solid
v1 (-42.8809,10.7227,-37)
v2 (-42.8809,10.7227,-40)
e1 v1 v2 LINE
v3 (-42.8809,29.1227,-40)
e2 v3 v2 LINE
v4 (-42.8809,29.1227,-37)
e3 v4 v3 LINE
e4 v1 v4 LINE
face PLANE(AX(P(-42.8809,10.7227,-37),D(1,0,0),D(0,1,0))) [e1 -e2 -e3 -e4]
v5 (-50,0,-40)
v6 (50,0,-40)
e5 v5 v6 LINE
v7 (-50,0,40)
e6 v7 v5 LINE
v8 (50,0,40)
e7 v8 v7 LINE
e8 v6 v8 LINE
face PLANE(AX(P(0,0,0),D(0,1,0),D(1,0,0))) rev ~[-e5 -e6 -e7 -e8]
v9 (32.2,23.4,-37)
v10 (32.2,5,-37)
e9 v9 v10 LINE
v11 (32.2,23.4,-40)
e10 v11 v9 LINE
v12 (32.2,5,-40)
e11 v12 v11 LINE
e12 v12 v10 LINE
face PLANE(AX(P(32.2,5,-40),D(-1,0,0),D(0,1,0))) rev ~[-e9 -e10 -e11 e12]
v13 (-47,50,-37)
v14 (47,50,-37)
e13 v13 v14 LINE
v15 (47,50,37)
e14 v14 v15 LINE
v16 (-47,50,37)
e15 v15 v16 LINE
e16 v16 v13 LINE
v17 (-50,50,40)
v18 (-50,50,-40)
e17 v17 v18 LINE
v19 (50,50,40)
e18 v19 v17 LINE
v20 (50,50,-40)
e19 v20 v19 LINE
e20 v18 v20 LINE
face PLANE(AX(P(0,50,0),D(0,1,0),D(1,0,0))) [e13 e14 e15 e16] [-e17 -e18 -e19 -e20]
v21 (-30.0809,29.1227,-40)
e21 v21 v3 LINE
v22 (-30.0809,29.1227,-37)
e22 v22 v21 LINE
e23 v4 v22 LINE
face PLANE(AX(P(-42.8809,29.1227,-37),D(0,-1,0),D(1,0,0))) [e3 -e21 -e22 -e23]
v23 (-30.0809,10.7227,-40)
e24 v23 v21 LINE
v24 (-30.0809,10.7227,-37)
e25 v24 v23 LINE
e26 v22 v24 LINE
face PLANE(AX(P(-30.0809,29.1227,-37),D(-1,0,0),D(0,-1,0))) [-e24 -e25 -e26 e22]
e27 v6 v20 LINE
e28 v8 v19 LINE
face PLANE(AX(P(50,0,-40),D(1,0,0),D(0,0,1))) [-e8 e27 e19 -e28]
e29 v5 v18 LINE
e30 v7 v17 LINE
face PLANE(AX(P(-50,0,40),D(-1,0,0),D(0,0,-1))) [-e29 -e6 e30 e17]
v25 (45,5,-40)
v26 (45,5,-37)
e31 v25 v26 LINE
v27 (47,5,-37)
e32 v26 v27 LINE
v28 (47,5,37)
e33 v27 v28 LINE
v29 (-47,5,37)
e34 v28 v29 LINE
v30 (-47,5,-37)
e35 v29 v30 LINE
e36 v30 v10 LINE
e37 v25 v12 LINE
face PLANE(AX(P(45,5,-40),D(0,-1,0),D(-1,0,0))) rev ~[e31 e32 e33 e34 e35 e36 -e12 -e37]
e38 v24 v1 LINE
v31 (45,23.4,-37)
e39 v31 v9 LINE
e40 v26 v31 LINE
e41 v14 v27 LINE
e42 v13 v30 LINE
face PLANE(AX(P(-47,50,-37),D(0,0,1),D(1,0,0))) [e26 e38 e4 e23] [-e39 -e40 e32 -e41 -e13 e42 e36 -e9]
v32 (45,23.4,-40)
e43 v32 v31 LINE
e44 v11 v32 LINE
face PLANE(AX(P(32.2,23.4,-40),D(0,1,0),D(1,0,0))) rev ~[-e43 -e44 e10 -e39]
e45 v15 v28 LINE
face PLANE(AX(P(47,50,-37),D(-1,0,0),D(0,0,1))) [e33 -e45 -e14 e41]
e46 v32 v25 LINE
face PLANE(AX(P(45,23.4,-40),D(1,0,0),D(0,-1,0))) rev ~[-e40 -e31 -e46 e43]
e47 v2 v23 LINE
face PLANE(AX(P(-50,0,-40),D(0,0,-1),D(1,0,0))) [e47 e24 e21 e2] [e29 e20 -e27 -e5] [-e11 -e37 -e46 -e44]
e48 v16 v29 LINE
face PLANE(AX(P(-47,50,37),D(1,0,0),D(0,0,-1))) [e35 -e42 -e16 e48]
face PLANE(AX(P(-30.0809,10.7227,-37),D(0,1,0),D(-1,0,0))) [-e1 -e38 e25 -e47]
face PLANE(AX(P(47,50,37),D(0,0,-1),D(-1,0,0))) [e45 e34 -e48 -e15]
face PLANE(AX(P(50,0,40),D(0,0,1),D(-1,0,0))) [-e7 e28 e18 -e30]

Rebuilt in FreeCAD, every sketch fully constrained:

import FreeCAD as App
import Part
import Sketcher
from FreeCAD import Vector
Q = App.Units.Quantity


def add_polygon(sketch, points):
    """Adds a closed chain of lines whose ends are joined by coincident constraints."""
    first, n = sketch.GeometryCount, len(points)
    for a, b in zip(points, points[1:] + points[:1]):
        sketch.addGeometry(Part.LineSegment(App.Vector(*a, 0), App.Vector(*b, 0)), False)
    for i in range(n):
        sketch.addConstraint(Sketcher.Constraint("Coincident", first + i, 2, first + (i + 1) % n, 1))

doc = App.newDocument("Part")
params = doc.addObject("Spreadsheet::Sheet", "Params")
for row, (alias, value) in enumerate([
    ("sketch1_width", "100 mm"),
    ("sketch1_height", "80 mm"),
    ("pad1_length", "50 mm"),
    ("sketch2_width", "94 mm"),
    ("sketch2_height", "74 mm"),
    ("pocket1_length", "45 mm"),
    ("sketch3_width", "12.8 mm"),
    ("sketch3_height", "18.4 mm"),
    ("pocket2_length", "55 mm"),
    ("sketch4_width", "94 mm"),
    ("sketch4_height", "74 mm"),
    ("pocket3_length", "45 mm"),
    ("sketch5_width", "12.8 mm"),
    ("sketch5_height", "18.4 mm"),
    ("pocket4_length", "10 mm"),
], start=1):
    params.set(f"A{row}", alias)
    params.set(f"B{row}", "=" + value)
    params.setAlias(f"B{row}", alias)

body = doc.addObject("PartDesign::Body", "Body")

# Sketch on XZ plane
sketch1 = body.newObject("Sketcher::SketchObject", "Sketch")
sketch1.AttachmentSupport = (doc.getObject("XZ_Plane"), [""])
sketch1.MapMode = "FlatFace"
add_polygon(sketch1, [(-50, 40), (50, 40), (50, -40), (-50, -40)])  # lines 0-3
sketch1.addConstraint(Sketcher.Constraint("Horizontal", 0))
sketch1.addConstraint(Sketcher.Constraint("Vertical", 1))
sketch1.addConstraint(Sketcher.Constraint("Horizontal", 2))
sketch1.addConstraint(Sketcher.Constraint("Vertical", 3))
sketch1.addConstraint(Sketcher.Constraint("Symmetric", 0, 2, 2, 2, -1, 1))
sketch1.addConstraint(Sketcher.Constraint("DistanceX", 0, 1, 0, 2, Q("100 mm")))
sketch1.addConstraint(Sketcher.Constraint("DistanceY", 1, 2, 1, 1, Q("80 mm")))
sketch1.setExpression("Constraints[9]", "Params.sketch1_width")
sketch1.setExpression("Constraints[10]", "Params.sketch1_height")
pad1 = body.newObject("PartDesign::Pad", "Pad")
pad1.Profile = sketch1
pad1.setExpression("Length", "Params.pad1_length")
pad1.Reversed = True

# Sketch on XZ plane
sketch2 = body.newObject("Sketcher::SketchObject", "Sketch001")
sketch2.AttachmentSupport = (doc.getObject("XZ_Plane"), [""])
sketch2.MapMode = "FlatFace"
sketch2.AttachmentOffset = App.Placement(Vector(0, 0, -50), App.Rotation())
add_polygon(sketch2, [(-47, 37), (47, 37), (47, -37), (-47, -37)])  # lines 0-3
sketch2.addConstraint(Sketcher.Constraint("Horizontal", 0))
sketch2.addConstraint(Sketcher.Constraint("Vertical", 1))
sketch2.addConstraint(Sketcher.Constraint("Horizontal", 2))
sketch2.addConstraint(Sketcher.Constraint("Vertical", 3))
sketch2.addConstraint(Sketcher.Constraint("Symmetric", 0, 2, 2, 2, -1, 1))
sketch2.addConstraint(Sketcher.Constraint("DistanceX", 0, 1, 0, 2, Q("94 mm")))
sketch2.addConstraint(Sketcher.Constraint("DistanceY", 1, 2, 1, 1, Q("74 mm")))
sketch2.setExpression("Constraints[9]", "Params.sketch2_width")
sketch2.setExpression("Constraints[10]", "Params.sketch2_height")
pocket1 = body.newObject("PartDesign::Pocket", "Pocket")
pocket1.Profile = sketch2
pocket1.setExpression("Length", "Params.pocket1_length")
pocket1.Reversed = True

# Sketch on XY plane
sketch3 = body.newObject("Sketcher::SketchObject", "Sketch002")
sketch3.AttachmentSupport = (doc.getObject("XY_Plane"), [""])
sketch3.MapMode = "FlatFace"
sketch3.AttachmentOffset = App.Placement(Vector(0, 0, -37), App.Rotation())
add_polygon(sketch3, [(-30, 29), (-43, 29), (-43, 11), (-30, 11)])  # lines 0-3
sketch3.addConstraint(Sketcher.Constraint("Horizontal", 0))
sketch3.addConstraint(Sketcher.Constraint("Vertical", 1))
sketch3.addConstraint(Sketcher.Constraint("Horizontal", 2))
sketch3.addConstraint(Sketcher.Constraint("Vertical", 3))
sketch3.addConstraint(Sketcher.Constraint("DistanceX", 0, 2, 0, 1, Q("12.8 mm")))
sketch3.addConstraint(Sketcher.Constraint("DistanceY", 1, 2, 1, 1, Q("18.4 mm")))
sketch3.addConstraint(Sketcher.Constraint("DistanceX", 0, 2, -1, 1, Q("42.881 mm")))
sketch3.addConstraint(Sketcher.Constraint("DistanceY", -1, 1, 0, 2, Q("29.1227 mm")))
sketch3.setExpression("Constraints[8]", "Params.sketch3_width")
sketch3.setExpression("Constraints[9]", "Params.sketch3_height")
pocket2 = body.newObject("PartDesign::Pocket", "Pocket001")
pocket2.Profile = sketch3
pocket2.setExpression("Length", "Params.pocket2_length")

# Sketch on XZ plane
sketch4 = body.newObject("Sketcher::SketchObject", "Sketch003")
sketch4.AttachmentSupport = (doc.getObject("XZ_Plane"), [""])
sketch4.MapMode = "FlatFace"
sketch4.AttachmentOffset = App.Placement(Vector(0, 0, -50), App.Rotation())
add_polygon(sketch4, [(-47, 37), (47, 37), (47, -37), (-47, -37)])  # lines 0-3
sketch4.addConstraint(Sketcher.Constraint("Horizontal", 0))
sketch4.addConstraint(Sketcher.Constraint("Vertical", 1))
sketch4.addConstraint(Sketcher.Constraint("Horizontal", 2))
sketch4.addConstraint(Sketcher.Constraint("Vertical", 3))
sketch4.addConstraint(Sketcher.Constraint("Symmetric", 0, 2, 2, 2, -1, 1))
sketch4.addConstraint(Sketcher.Constraint("DistanceX", 0, 1, 0, 2, Q("94 mm")))
sketch4.addConstraint(Sketcher.Constraint("DistanceY", 1, 2, 1, 1, Q("74 mm")))
sketch4.setExpression("Constraints[9]", "Params.sketch4_width")
sketch4.setExpression("Constraints[10]", "Params.sketch4_height")
pocket3 = body.newObject("PartDesign::Pocket", "Pocket002")
pocket3.Profile = sketch4
pocket3.setExpression("Length", "Params.pocket3_length")
pocket3.Reversed = True

# Sketch on XY plane
sketch5 = body.newObject("Sketcher::SketchObject", "Sketch004")
sketch5.AttachmentSupport = (doc.getObject("XY_Plane"), [""])
sketch5.MapMode = "FlatFace"
sketch5.AttachmentOffset = App.Placement(Vector(0, 0, -40), App.Rotation())
add_polygon(sketch5, [(45, 23), (45, 5), (32, 5), (32, 23)])  # lines 0-3
sketch5.addConstraint(Sketcher.Constraint("Vertical", 0))
sketch5.addConstraint(Sketcher.Constraint("Horizontal", 1))
sketch5.addConstraint(Sketcher.Constraint("Vertical", 2))
sketch5.addConstraint(Sketcher.Constraint("Horizontal", 3))
sketch5.addConstraint(Sketcher.Constraint("DistanceX", 1, 2, 1, 1, Q("12.8 mm")))
sketch5.addConstraint(Sketcher.Constraint("DistanceY", 0, 2, 0, 1, Q("18.4 mm")))
sketch5.addConstraint(Sketcher.Constraint("DistanceX", -1, 1, 0, 2, Q("45 mm")))
sketch5.addConstraint(Sketcher.Constraint("DistanceY", -1, 1, 0, 2, Q("5 mm")))
sketch5.setExpression("Constraints[8]", "Params.sketch5_width")
sketch5.setExpression("Constraints[9]", "Params.sketch5_height")
pocket4 = body.newObject("PartDesign::Pocket", "Pocket003")
pocket4.Profile = sketch5
pocket4.setExpression("Length", "Params.pocket4_length")
pocket4.Reversed = True

doc.recompute()
